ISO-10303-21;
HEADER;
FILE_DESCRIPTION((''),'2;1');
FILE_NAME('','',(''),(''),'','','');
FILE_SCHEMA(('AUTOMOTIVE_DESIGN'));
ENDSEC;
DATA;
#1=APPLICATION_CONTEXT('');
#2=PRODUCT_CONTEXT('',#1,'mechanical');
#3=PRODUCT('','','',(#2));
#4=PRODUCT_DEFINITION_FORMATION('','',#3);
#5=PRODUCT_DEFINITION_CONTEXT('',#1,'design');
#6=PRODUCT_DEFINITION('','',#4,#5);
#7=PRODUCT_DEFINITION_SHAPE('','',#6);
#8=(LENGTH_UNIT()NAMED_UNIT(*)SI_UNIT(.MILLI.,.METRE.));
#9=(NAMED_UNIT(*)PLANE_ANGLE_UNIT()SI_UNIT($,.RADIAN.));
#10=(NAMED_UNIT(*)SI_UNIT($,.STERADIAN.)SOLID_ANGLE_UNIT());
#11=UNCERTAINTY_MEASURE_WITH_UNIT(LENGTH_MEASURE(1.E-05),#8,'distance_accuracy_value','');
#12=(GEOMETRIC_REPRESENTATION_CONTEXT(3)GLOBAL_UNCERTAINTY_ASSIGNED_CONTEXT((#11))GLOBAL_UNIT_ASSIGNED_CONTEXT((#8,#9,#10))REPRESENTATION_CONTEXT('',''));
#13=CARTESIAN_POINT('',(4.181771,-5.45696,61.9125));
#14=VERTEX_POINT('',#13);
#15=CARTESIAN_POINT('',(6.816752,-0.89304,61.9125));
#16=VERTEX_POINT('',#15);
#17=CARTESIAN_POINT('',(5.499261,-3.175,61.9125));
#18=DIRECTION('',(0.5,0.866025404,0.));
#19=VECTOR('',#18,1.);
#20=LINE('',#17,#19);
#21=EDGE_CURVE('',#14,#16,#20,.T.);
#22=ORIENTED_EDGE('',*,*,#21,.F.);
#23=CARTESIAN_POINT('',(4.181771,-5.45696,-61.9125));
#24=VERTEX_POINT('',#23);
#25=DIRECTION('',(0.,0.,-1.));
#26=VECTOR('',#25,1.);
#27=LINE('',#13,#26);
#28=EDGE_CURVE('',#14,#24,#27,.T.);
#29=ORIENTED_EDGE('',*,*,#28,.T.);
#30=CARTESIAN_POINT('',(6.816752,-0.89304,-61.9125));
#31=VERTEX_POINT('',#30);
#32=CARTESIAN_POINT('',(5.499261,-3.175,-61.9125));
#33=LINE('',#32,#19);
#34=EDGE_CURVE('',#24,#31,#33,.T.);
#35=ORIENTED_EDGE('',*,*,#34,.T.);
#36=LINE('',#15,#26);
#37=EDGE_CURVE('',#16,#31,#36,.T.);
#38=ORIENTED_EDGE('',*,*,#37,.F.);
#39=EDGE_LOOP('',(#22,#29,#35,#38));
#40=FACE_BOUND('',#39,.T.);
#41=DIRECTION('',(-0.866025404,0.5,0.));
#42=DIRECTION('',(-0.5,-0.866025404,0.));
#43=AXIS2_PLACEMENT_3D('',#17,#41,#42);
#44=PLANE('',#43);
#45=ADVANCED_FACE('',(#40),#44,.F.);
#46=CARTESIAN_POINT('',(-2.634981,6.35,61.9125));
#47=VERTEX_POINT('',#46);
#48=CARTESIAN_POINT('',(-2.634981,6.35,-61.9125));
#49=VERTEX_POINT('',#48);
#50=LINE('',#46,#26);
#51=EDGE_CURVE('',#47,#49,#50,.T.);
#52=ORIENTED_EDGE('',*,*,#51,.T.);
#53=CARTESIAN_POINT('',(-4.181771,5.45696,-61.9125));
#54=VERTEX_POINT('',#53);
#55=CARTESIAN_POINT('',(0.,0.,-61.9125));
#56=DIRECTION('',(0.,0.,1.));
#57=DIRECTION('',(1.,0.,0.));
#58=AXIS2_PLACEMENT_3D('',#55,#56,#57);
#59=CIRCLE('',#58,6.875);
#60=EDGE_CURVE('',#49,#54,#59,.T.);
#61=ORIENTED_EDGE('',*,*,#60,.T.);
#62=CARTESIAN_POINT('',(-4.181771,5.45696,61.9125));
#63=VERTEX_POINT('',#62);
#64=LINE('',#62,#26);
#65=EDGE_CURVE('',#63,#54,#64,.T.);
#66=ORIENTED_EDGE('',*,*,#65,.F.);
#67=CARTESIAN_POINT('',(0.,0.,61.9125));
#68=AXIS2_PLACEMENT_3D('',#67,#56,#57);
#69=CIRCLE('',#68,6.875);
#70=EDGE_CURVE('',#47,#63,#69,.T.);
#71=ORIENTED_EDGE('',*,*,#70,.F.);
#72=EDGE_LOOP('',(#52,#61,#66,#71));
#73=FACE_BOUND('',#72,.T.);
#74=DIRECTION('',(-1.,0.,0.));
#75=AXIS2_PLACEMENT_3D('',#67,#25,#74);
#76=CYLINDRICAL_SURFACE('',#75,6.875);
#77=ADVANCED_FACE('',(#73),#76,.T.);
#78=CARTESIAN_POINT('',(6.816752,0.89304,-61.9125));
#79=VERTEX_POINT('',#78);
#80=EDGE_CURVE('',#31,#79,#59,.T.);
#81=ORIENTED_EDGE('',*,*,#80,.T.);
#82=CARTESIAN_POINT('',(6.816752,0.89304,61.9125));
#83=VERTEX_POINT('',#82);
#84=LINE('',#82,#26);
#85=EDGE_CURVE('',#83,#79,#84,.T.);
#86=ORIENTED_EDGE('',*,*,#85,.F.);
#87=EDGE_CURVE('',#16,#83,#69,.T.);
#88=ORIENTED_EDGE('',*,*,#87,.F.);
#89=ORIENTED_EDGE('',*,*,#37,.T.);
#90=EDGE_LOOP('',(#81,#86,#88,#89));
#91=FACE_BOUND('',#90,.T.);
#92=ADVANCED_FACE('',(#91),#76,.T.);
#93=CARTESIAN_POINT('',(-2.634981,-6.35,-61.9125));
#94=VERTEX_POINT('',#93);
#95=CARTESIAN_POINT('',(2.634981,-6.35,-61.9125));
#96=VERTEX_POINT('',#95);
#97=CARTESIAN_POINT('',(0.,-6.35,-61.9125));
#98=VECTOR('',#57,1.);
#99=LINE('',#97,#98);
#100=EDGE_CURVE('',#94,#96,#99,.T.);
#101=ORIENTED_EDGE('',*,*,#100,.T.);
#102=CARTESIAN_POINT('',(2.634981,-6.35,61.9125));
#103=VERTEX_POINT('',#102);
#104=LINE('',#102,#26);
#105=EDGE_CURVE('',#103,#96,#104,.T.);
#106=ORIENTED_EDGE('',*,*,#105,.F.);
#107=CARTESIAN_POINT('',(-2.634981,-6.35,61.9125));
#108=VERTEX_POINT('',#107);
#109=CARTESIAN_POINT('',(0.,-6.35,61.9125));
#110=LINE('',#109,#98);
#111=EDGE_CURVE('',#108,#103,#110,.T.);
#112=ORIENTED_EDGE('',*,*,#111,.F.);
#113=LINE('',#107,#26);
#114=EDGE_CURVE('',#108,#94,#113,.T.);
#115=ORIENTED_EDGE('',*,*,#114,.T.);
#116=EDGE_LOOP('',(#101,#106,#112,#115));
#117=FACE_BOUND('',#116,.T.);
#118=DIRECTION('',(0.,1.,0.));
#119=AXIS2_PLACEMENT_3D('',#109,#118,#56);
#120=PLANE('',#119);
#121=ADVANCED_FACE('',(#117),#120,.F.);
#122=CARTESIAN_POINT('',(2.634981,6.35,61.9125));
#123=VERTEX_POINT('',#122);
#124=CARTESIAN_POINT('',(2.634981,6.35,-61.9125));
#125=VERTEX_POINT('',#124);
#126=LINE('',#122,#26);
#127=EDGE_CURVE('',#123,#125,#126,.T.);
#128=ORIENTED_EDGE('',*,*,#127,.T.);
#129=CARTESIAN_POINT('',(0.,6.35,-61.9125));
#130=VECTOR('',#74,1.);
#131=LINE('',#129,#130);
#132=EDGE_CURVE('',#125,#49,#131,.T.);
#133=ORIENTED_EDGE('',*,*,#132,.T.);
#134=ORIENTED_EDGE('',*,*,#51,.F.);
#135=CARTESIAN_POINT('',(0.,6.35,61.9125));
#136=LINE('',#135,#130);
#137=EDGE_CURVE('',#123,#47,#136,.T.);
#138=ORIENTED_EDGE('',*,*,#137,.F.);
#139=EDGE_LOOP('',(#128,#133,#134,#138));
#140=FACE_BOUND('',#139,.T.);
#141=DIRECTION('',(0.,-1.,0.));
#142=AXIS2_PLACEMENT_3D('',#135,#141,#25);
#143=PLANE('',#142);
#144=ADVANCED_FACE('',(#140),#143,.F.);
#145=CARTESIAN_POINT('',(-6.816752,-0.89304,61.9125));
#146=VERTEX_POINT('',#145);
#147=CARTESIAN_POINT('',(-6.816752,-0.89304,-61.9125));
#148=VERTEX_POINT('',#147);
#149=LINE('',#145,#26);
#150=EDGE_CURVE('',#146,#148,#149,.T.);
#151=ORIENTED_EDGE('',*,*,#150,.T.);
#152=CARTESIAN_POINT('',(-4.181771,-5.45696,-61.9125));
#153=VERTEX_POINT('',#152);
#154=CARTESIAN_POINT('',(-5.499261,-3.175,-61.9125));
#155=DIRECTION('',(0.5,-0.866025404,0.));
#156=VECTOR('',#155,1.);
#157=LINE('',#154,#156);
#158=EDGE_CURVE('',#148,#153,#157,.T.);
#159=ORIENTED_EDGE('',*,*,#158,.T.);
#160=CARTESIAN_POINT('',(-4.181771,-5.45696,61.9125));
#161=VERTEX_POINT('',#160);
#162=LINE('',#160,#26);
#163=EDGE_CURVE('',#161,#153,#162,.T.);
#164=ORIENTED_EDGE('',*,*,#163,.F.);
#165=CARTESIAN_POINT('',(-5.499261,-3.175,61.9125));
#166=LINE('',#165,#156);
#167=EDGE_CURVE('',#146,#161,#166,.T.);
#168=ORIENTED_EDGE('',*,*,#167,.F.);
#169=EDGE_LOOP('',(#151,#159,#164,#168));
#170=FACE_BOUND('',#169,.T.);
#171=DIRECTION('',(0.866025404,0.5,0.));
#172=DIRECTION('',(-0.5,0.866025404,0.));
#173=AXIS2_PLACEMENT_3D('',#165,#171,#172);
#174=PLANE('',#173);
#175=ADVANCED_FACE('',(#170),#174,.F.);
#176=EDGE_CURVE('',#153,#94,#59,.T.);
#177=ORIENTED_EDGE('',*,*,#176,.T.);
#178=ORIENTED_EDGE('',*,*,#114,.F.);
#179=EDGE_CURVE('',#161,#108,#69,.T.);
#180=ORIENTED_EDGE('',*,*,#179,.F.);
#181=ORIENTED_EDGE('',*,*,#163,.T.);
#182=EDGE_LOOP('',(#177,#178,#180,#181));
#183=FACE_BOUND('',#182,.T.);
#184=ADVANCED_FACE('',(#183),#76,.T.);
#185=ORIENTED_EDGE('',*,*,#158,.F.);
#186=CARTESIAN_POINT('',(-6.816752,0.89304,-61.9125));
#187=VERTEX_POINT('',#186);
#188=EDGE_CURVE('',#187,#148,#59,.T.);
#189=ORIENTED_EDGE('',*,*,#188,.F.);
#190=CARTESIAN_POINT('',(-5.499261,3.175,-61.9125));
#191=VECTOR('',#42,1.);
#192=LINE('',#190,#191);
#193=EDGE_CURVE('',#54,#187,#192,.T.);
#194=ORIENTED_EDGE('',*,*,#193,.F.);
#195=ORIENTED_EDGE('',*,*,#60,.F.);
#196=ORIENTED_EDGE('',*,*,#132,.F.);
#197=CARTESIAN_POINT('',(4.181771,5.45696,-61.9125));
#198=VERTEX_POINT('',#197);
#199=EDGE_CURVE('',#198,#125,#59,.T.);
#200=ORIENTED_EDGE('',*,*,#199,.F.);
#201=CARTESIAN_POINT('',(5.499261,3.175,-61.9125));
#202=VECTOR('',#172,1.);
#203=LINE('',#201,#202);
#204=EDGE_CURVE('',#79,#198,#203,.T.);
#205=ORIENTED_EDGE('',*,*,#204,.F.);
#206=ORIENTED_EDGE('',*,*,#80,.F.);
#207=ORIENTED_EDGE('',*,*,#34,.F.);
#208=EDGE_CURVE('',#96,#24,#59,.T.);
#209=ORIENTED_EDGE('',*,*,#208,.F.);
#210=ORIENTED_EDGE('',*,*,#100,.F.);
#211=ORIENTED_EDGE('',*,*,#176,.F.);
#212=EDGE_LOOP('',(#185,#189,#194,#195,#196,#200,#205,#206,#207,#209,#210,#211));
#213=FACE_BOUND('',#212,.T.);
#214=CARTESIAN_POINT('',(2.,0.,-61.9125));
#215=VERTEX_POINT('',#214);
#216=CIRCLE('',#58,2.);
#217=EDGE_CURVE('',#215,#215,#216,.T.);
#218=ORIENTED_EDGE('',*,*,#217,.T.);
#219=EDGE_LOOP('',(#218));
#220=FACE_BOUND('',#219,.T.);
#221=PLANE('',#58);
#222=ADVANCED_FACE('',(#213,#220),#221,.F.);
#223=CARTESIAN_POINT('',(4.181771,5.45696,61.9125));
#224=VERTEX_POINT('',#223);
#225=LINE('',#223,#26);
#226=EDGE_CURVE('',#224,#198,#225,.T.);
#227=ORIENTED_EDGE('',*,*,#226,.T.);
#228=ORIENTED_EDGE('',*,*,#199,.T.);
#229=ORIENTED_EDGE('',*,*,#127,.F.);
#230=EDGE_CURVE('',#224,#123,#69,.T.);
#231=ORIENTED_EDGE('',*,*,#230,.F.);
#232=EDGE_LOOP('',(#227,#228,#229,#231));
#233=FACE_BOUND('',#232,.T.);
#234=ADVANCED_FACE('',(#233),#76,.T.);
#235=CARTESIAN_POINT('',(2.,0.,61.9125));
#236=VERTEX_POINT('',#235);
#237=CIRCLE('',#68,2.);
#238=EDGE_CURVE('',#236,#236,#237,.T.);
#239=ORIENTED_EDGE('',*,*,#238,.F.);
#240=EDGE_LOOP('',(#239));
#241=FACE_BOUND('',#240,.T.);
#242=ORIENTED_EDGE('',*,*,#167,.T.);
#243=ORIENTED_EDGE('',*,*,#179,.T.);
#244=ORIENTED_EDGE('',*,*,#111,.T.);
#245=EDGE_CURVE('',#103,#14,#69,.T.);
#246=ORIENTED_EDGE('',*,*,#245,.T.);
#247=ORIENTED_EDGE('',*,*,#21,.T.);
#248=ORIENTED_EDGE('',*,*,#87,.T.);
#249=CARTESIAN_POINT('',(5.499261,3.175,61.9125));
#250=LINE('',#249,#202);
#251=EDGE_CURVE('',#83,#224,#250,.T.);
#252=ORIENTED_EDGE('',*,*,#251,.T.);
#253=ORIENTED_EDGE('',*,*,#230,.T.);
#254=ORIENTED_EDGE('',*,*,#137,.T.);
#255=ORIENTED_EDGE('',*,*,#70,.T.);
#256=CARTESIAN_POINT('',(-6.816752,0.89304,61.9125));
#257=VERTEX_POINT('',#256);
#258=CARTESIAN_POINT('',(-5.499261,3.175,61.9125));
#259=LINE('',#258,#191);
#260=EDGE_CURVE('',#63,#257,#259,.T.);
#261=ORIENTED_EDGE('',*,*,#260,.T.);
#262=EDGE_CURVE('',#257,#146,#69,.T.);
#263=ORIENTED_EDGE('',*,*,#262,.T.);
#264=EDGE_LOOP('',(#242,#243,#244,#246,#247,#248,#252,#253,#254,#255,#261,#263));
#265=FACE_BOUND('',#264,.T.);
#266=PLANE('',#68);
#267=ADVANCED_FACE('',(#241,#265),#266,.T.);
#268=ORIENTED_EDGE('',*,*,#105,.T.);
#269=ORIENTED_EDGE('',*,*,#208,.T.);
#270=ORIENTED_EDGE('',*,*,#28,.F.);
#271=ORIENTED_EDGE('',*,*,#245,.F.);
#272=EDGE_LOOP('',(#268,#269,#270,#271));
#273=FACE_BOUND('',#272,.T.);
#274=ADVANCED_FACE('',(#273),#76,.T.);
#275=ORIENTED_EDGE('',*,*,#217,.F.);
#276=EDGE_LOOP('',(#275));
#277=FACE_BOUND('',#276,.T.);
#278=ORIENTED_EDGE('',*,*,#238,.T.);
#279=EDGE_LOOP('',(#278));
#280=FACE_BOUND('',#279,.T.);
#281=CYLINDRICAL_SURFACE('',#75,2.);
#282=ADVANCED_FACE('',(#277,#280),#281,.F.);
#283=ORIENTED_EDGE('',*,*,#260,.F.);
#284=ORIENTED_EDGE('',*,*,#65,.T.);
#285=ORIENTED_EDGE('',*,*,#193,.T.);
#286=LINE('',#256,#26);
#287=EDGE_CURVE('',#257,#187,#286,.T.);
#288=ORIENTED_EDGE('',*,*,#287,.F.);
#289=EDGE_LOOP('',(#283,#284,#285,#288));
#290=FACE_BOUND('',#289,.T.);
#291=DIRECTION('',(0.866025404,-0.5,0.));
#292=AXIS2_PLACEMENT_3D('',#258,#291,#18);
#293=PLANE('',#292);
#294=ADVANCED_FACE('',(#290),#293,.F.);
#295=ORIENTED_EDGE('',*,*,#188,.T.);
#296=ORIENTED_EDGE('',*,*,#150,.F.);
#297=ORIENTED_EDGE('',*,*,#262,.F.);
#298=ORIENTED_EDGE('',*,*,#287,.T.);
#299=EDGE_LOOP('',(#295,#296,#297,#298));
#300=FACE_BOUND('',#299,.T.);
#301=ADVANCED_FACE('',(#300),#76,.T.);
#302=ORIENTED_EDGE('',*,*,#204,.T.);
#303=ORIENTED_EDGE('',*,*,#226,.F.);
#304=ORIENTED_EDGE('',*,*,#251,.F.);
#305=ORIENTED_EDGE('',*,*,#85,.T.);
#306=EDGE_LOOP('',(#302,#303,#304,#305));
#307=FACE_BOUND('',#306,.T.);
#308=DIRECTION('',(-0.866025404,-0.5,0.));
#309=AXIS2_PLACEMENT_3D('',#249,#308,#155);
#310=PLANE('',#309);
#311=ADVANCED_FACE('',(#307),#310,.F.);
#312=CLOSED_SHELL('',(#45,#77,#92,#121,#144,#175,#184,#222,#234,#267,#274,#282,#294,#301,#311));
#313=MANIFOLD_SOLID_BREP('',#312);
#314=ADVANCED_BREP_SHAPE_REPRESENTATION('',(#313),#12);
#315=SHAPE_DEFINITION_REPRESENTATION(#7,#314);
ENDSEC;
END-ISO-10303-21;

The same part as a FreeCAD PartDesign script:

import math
import FreeCAD as App
import Part
import Sketcher

V = App.Vector
Q = App.Units.Quantity

doc = App.newDocument("Part")
params = doc.addObject("Spreadsheet::Sheet", "Params")
for row, (alias, value) in enumerate([
    ("sketch1_diameter", "4 mm"),
    ("pad1_length", "123.825 mm"),
], start=1):
    params.set(f"A{row}", alias)
    params.set(f"B{row}", "=" + value)
    params.setAlias(f"B{row}", alias)

body = doc.addObject("PartDesign::Body", "Body")

# Sketch on XY plane
sketch1 = body.newObject("Sketcher::SketchObject", "Sketch")
sketch1.AttachmentSupport = (doc.getObject("XY_Plane"), [""])
sketch1.MapMode = "FlatFace"
sketch1.addGeometry([
    Part.ArcOfCircle(Part.Circle(V(0, 0, 0), V(0, 0, 1), 6.875), math.radians(52.536379), math.radians(67.463621)),  # 0
    Part.LineSegment(V(2.634981, 6.35, 0), V(-2.634981, 6.35, 0)),  # 1
    Part.ArcOfCircle(Part.Circle(V(0, 0, 0), V(0, 0, 1), 6.875), math.radians(112.536379), math.radians(127.463621)),  # 2
    Part.LineSegment(V(-4.181771, 5.45696, 0), V(-6.816752, 0.89304, 0)),  # 3
    Part.ArcOfCircle(Part.Circle(V(0, 0, 0), V(0, 0, 1), 6.875), math.radians(172.536379), math.radians(187.463621)),  # 4
    Part.LineSegment(V(-6.816752, -0.89304, 0), V(-4.181771, -5.45696, 0)),  # 5
    Part.ArcOfCircle(Part.Circle(V(0, 0, 0), V(0, 0, 1), 6.875), math.radians(-127.463621), math.radians(-112.536379)),  # 6
    Part.LineSegment(V(-2.634981, -6.35, 0), V(2.634981, -6.35, 0)),  # 7
    Part.ArcOfCircle(Part.Circle(V(0, 0, 0), V(0, 0, 1), 6.875), math.radians(-67.463621), math.radians(-52.536379)),  # 8
    Part.LineSegment(V(4.181771, -5.45696, 0), V(6.816752, -0.89304, 0)),  # 9
    Part.ArcOfCircle(Part.Circle(V(0, 0, 0), V(0, 0, 1), 6.875), math.radians(-7.463621), math.radians(0)),  # 10
    Part.ArcOfCircle(Part.Circle(V(0, 0, 0), V(0, 0, 1), 6.875), math.radians(0), math.radians(7.463621)),  # 11
    Part.LineSegment(V(6.816752, 0.89304, 0), V(4.181771, 5.45696, 0)),  # 12
    Part.Circle(V(0, 0, 0), V(0, 0, 1), 2),  # 13
], False)
sketch1.addConstraint([
    Sketcher.Constraint("Coincident", 0, 2, 1, 1),
    Sketcher.Constraint("Coincident", 1, 2, 2, 1),
    Sketcher.Constraint("Coincident", 2, 2, 3, 1),
    Sketcher.Constraint("Coincident", 3, 2, 4, 1),
    Sketcher.Constraint("Coincident", 4, 2, 5, 1),
    Sketcher.Constraint("Coincident", 5, 2, 6, 1),
    Sketcher.Constraint("Coincident", 6, 2, 7, 1),
    Sketcher.Constraint("Coincident", 7, 2, 8, 1),
    Sketcher.Constraint("Coincident", 8, 2, 9, 1),
    Sketcher.Constraint("Coincident", 9, 2, 10, 1),
    Sketcher.Constraint("Tangent", 10, 2, 11, 1),
    Sketcher.Constraint("Coincident", 11, 2, 12, 1),
    Sketcher.Constraint("Coincident", 12, 2, 0, 1),
    Sketcher.Constraint("Horizontal", 1),
    Sketcher.Constraint("Horizontal", 7),
    Sketcher.Constraint("Coincident", 0, 3, -1, 1),
    Sketcher.Constraint("Coincident", 2, 3, -1, 1),
    Sketcher.Constraint("Coincident", 4, 3, -1, 1),
    Sketcher.Constraint("Coincident", 6, 3, -1, 1),
    Sketcher.Constraint("Coincident", 8, 3, -1, 1),
    Sketcher.Constraint("Coincident", 10, 3, -1, 1),
    Sketcher.Constraint("Coincident", 13, 3, -1, 1),
    Sketcher.Constraint("Equal", 0, 2),
    Sketcher.Constraint("Equal", 2, 4),
    Sketcher.Constraint("Equal", 4, 6),
    Sketcher.Constraint("Equal", 6, 8),
    Sketcher.Constraint("Equal", 8, 10),
    Sketcher.Constraint("Equal", 10, 11),
    Sketcher.Constraint("PointOnObject", 10, 2, -1),
    Sketcher.Constraint("Parallel", 3, 9),
    Sketcher.Constraint("Parallel", 5, 12),
    Sketcher.Constraint("Horizontal", 5, 2, 8, 2),
    Sketcher.Constraint("Horizontal", 4, 2, 9, 2),
    Sketcher.Constraint("Horizontal", 3, 2, 11, 2),
    Sketcher.Constraint("Vertical", 3, 2, 4, 2),
    Sketcher.Constraint("Vertical", 1, 2, 6, 2),
    Sketcher.Constraint("Diameter", 13, Q("4 mm")),
    Sketcher.Constraint("Angle", 3, Q("-120 deg")),
    Sketcher.Constraint("Radius", 0, Q("6.875 mm")),
    Sketcher.Constraint("DistanceY", -1, 1, 0, 2, Q("6.35 mm")),
    Sketcher.Constraint("Distance", 3, Q("5.269962 mm")),
])
sketch1.setExpression("Constraints[36]", "Params.sketch1_diameter")
pad1 = body.newObject("PartDesign::Pad", "Pad")
pad1.Profile = sketch1
pad1.setExpression("Length", "Params.pad1_length")
pad1.Midplane = True

doc.recompute()
